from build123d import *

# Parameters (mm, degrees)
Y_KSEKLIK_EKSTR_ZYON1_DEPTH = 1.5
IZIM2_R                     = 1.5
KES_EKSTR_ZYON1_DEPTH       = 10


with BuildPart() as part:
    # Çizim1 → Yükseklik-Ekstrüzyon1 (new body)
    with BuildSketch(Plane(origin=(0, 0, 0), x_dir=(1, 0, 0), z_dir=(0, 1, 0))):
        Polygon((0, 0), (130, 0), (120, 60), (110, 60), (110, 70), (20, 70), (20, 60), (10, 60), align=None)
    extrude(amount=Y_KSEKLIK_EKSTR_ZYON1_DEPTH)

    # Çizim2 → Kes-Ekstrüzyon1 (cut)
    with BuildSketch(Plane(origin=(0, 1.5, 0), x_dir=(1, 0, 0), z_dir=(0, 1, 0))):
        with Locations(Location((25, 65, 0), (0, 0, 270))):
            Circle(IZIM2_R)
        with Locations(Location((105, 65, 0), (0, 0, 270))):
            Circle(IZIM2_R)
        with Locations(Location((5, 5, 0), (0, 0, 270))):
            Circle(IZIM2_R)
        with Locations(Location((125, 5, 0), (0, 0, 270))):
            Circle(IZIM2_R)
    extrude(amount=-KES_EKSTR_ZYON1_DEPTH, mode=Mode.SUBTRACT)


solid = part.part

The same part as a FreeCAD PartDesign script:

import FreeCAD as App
import Part
import Sketcher
from FreeCAD import Vector

doc = App.newDocument("Part")
body = doc.addObject("PartDesign::Body", "Body")

# Sketch on XZ plane
sketch1 = body.newObject("Sketcher::SketchObject", "Sketch")
sketch1.AttachmentSupport = (doc.getObject("XZ_Plane"), [""])
sketch1.MapMode = "FlatFace"
sketch1.addGeometry(Part.LineSegment(Vector(0, 0, 0), Vector(130, 0, 0)), False)
sketch1.addGeometry(Part.LineSegment(Vector(130, 0, 0), Vector(120, -60, 0)), False)
sketch1.addGeometry(Part.LineSegment(Vector(120, -60, 0), Vector(110, -60, 0)), False)
sketch1.addGeometry(Part.LineSegment(Vector(110, -60, 0), Vector(110, -70, 0)), False)
sketch1.addGeometry(Part.LineSegment(Vector(110, -70, 0), Vector(20, -70, 0)), False)
sketch1.addGeometry(Part.LineSegment(Vector(20, -70, 0), Vector(20, -60, 0)), False)
sketch1.addGeometry(Part.LineSegment(Vector(20, -60, 0), Vector(10, -60, 0)), False)
sketch1.addGeometry(Part.LineSegment(Vector(10, -60, 0), Vector(0, 0, 0)), False)
sketch1.addConstraint(Sketcher.Constraint("Coincident", 0, 2, 1, 1))
sketch1.addConstraint(Sketcher.Constraint("Coincident", 1, 2, 2, 1))
sketch1.addConstraint(Sketcher.Constraint("Coincident", 2, 2, 3, 1))
sketch1.addConstraint(Sketcher.Constraint("Coincident", 3, 2, 4, 1))
sketch1.addConstraint(Sketcher.Constraint("Coincident", 4, 2, 5, 1))
sketch1.addConstraint(Sketcher.Constraint("Coincident", 5, 2, 6, 1))
sketch1.addConstraint(Sketcher.Constraint("Coincident", 6, 2, 7, 1))
sketch1.addConstraint(Sketcher.Constraint("Coincident", 7, 2, 0, 1))
sketch1.addConstraint(Sketcher.Constraint("Horizontal", 0))
sketch1.addConstraint(Sketcher.Constraint("Horizontal", 2))
sketch1.addConstraint(Sketcher.Constraint("Vertical", 3))
sketch1.addConstraint(Sketcher.Constraint("Horizontal", 4))
sketch1.addConstraint(Sketcher.Constraint("Vertical", 5))
sketch1.addConstraint(Sketcher.Constraint("Horizontal", 6))
sketch1.addConstraint(Sketcher.Constraint("Coincident", 7, 2, -1, 1))
sketch1.addConstraint(Sketcher.Constraint("Horizontal", 2, 2, 5, 2))
sketch1.addConstraint(Sketcher.Constraint("Equal", 2, 6))
sketch1.addConstraint(Sketcher.Constraint("Equal", 6, 3))
sketch1.addConstraint(Sketcher.Constraint("Equal", 1, 7))
sketch1.addConstraint(Sketcher.Constraint("DistanceX", 0, 1, 0, 2, 130.0))
sketch1.addConstraint(Sketcher.Constraint("DistanceX", 2, 2, 2, 1, 10.0))
sketch1.addConstraint(Sketcher.Constraint("DistanceX", 4, 2, 4, 1, 90.0))
sketch1.addConstraint(Sketcher.Constraint("DistanceY", 1, 2, -1, 1, 60.0))
pad1 = body.newObject("PartDesign::Pad", "Pad")
pad1.Profile = sketch1
pad1.Length = 1.5
pad1.Reversed = True

# Sketch on XZ plane
sketch2 = body.newObject("Sketcher::SketchObject", "Sketch001")
sketch2.AttachmentSupport = (doc.getObject("XZ_Plane"), [""])
sketch2.MapMode = "FlatFace"
sketch2.AttachmentOffset = App.Placement(Vector(0, 0, -1.5), App.Rotation())
sketch2.addGeometry(Part.Circle(Vector(25, -65, 0), Vector(0, 0, 1), 1.5), False)
sketch2.addGeometry(Part.Circle(Vector(105, -65, 0), Vector(0, 0, 1), 1.5), False)
sketch2.addGeometry(Part.Circle(Vector(5, -5, 0), Vector(0, 0, 1), 1.5), False)
sketch2.addGeometry(Part.Circle(Vector(125, -5, 0), Vector(0, 0, 1), 1.5), False)
sketch2.addConstraint(Sketcher.Constraint("Equal", 0, 1))
sketch2.addConstraint(Sketcher.Constraint("Equal", 1, 2))
sketch2.addConstraint(Sketcher.Constraint("Equal", 2, 3))
sketch2.addConstraint(Sketcher.Constraint("Horizontal", 0, 3, 1, 3))
sketch2.addConstraint(Sketcher.Constraint("Horizontal", 2, 3, 3, 3))
sketch2.addConstraint(Sketcher.Constraint("Diameter", 0, 3.0))
sketch2.addConstraint(Sketcher.Constraint("DistanceX", -1, 1, 0, 3, 25.0))
sketch2.addConstraint(Sketcher.Constraint("DistanceY", 0, 3, -1, 1, 65.0))
sketch2.addConstraint(Sketcher.Constraint("DistanceX", -1, 1, 1, 3, 105.0))
sketch2.addConstraint(Sketcher.Constraint("DistanceX", -1, 1, 2, 3, 5.0))
sketch2.addConstraint(Sketcher.Constraint("DistanceY", 2, 3, -1, 1, 5.0))
sketch2.addConstraint(Sketcher.Constraint("DistanceX", -1, 1, 3, 3, 125.0))
pocket1 = body.newObject("PartDesign::Pocket", "Pocket")
pocket1.Profile = sketch2
pocket1.Length = 10
pocket1.Reversed = True

doc.recompute()
